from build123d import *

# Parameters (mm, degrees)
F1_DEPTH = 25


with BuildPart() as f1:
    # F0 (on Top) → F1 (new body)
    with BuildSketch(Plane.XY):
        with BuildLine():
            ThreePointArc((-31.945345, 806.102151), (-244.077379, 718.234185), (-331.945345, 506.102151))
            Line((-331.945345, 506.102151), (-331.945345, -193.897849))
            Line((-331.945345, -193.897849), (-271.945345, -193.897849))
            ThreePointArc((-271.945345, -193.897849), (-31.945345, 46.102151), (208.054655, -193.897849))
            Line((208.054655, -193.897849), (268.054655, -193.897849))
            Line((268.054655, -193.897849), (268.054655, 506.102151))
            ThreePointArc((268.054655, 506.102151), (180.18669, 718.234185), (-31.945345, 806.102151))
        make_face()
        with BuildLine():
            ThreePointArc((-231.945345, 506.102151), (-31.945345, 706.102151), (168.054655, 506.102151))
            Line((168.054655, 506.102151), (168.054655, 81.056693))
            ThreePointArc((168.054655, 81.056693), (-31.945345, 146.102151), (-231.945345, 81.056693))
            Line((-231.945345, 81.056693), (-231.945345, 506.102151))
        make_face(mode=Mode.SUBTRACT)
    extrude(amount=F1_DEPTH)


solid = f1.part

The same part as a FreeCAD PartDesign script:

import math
import FreeCAD as App
import Part
import Sketcher
from FreeCAD import Vector

doc = App.newDocument("Part")
body = doc.addObject("PartDesign::Body", "Body")

# Sketch on XY plane
sketch1 = body.newObject("Sketcher::SketchObject", "Sketch")
sketch1.AttachmentSupport = (doc.getObject("XY_Plane"), [""])
sketch1.MapMode = "FlatFace"
sketch1.addGeometry(Part.ArcOfCircle(Part.Circle(Vector(-31.945344, 506.10215, 0), Vector(0, 0, 1), 300.000001), math.radians(90), math.radians(180)), False)
sketch1.addGeometry(Part.LineSegment(Vector(-331.945345, 506.102151, 0), Vector(-331.945345, -193.897849, 0)), False)
sketch1.addGeometry(Part.LineSegment(Vector(-331.945345, -193.897849, 0), Vector(-271.945345, -193.897849, 0)), False)
sketch1.addGeometry(Part.ArcOfCircle(Part.Circle(Vector(-31.945345, -193.897849, 0), Vector(0, 0, 1), 240), math.radians(0), math.radians(180)), False)
sketch1.addGeometry(Part.LineSegment(Vector(208.054655, -193.897849, 0), Vector(268.054655, -193.897849, 0)), False)
sketch1.addGeometry(Part.LineSegment(Vector(268.054655, -193.897849, 0), Vector(268.054655, 506.102151, 0)), False)
sketch1.addGeometry(Part.ArcOfCircle(Part.Circle(Vector(-31.945345, 506.102151, 0), Vector(0, 0, 1), 300), math.radians(0), math.radians(90)), False)
sketch1.addGeometry(Part.LineSegment(Vector(-231.945345, 81.056693, 0), Vector(-231.945345, 506.102151, 0)), False)
sketch1.addGeometry(Part.ArcOfCircle(Part.Circle(Vector(-31.945345, 506.102151, 0), Vector(0, 0, 1), 200), math.radians(0), math.radians(180)), False)
sketch1.addGeometry(Part.LineSegment(Vector(168.054655, 506.102151, 0), Vector(168.054655, 81.056693, 0)), False)
sketch1.addGeometry(Part.ArcOfCircle(Part.Circle(Vector(-31.945345, -193.89785, 0), Vector(0, 0, 1), 340.000001), math.radians(53.968121), math.radians(126.031879)), False)
sketch1.addConstraint(Sketcher.Constraint("Tangent", 0, 2, 1, 1))
sketch1.addConstraint(Sketcher.Constraint("Coincident", 1, 2, 2, 1))
sketch1.addConstraint(Sketcher.Constraint("Coincident", 2, 2, 3, 2))
sketch1.addConstraint(Sketcher.Constraint("Coincident", 3, 1, 4, 1))
sketch1.addConstraint(Sketcher.Constraint("Coincident", 4, 2, 5, 1))
sketch1.addConstraint(Sketcher.Constraint("Tangent", 5, 2, 6, 1))
sketch1.addConstraint(Sketcher.Constraint("Tangent", 6, 2, 0, 1))
sketch1.addConstraint(Sketcher.Constraint("Tangent", 7, 2, 8, 2))
sketch1.addConstraint(Sketcher.Constraint("Tangent", 8, 1, 9, 1))
sketch1.addConstraint(Sketcher.Constraint("Coincident", 9, 2, 10, 1))
sketch1.addConstraint(Sketcher.Constraint("Coincident", 10, 2, 7, 1))
sketch1.addConstraint(Sketcher.Constraint("Vertical", 1))
sketch1.addConstraint(Sketcher.Constraint("Horizontal", 2))
sketch1.addConstraint(Sketcher.Constraint("Horizontal", 4))
sketch1.addConstraint(Sketcher.Constraint("Vertical", 5))
sketch1.addConstraint(Sketcher.Constraint("Vertical", 7))
sketch1.addConstraint(Sketcher.Constraint("Vertical", 9))
sketch1.addConstraint(Sketcher.Constraint("Coincident", 8, 3, 0, 3))
sketch1.addConstraint(Sketcher.Constraint("Coincident", 10, 3, 3, 3))
sketch1.addConstraint(Sketcher.Constraint("Equal", 0, 6))
sketch1.addConstraint(Sketcher.Constraint("Horizontal", 10, 3, 1, 2))
sketch1.addConstraint(Sketcher.Constraint("Horizontal", 2, 2, 3, 1))
sketch1.addConstraint(Sketcher.Constraint("Horizontal", 9, 2, 10, 2))
sketch1.addConstraint(Sketcher.Constraint("Vertical", 10, 3, 6, 2))
sketch1.addConstraint(Sketcher.Constraint("Radius", 0, 300.000001))
sketch1.addConstraint(Sketcher.Constraint("Radius", 3, 240.0))
sketch1.addConstraint(Sketcher.Constraint("Radius", 8, 200.0))
sketch1.addConstraint(Sketcher.Constraint("Radius", 10, 340.000001))
sketch1.addConstraint(Sketcher.Constraint("DistanceY", 1, 2, 1, 1, 700.0))
sketch1.addConstraint(Sketcher.Constraint("DistanceY", -1, 1, 0, 3, 506.10215))
sketch1.addConstraint(Sketcher.Constraint("DistanceX", 0, 3, -1, 1, 31.945344))
pad1 = body.newObject("PartDesign::Pad", "Pad")
pad1.Profile = sketch1
pad1.Length = 25

doc.recompute()
